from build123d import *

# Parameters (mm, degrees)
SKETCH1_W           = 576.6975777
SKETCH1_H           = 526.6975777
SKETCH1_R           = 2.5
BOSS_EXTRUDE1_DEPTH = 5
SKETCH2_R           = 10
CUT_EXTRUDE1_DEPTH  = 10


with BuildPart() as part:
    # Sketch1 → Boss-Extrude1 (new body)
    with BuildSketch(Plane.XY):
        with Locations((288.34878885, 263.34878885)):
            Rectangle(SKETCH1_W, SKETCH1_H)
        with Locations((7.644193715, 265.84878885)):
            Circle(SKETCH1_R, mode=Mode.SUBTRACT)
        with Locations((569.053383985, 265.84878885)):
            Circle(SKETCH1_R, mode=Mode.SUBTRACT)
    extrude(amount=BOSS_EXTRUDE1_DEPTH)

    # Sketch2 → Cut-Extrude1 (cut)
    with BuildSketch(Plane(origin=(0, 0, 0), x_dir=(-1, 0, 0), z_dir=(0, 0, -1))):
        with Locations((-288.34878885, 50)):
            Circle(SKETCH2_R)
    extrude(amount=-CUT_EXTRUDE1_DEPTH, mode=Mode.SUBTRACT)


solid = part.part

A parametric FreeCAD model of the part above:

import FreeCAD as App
import Part
import Sketcher


def add_polygon(sketch, points):
    """Adds a closed chain of lines whose ends are joined by coincident constraints."""
    first, n = sketch.GeometryCount, len(points)
    for a, b in zip(points, points[1:] + points[:1]):
        sketch.addGeometry(Part.LineSegment(App.Vector(*a, 0), App.Vector(*b, 0)), False)
    for i in range(n):
        sketch.addConstraint(Sketcher.Constraint("Coincident", first + i, 2, first + (i + 1) % n, 1))

doc = App.newDocument("Part")
body = doc.addObject("PartDesign::Body", "Body")

# Sketch on XY plane
sketch1 = body.newObject("Sketcher::SketchObject", "Sketch")
sketch1.AttachmentSupport = (doc.getObject("XY_Plane"), [""])
sketch1.MapMode = "FlatFace"
add_polygon(sketch1, [(0, 526.7), (0, 0), (576.7, 0), (576.7, 526.7)])  # lines 0-3
sketch1.addGeometry(Part.Circle(App.Vector(7.6, 265.8, 0), App.Vector(0, 0, 1), 2.5), False)  # 4
sketch1.addGeometry(Part.Circle(App.Vector(569.1, 265.8, 0), App.Vector(0, 0, 1), 2.5), False)  # 5
sketch1.addConstraint(Sketcher.Constraint("Vertical", 0))
sketch1.addConstraint(Sketcher.Constraint("Horizontal", 1))
sketch1.addConstraint(Sketcher.Constraint("Vertical", 2))
sketch1.addConstraint(Sketcher.Constraint("Horizontal", 3))
sketch1.addConstraint(Sketcher.Constraint("Coincident", 0, 2, -1, 1))
sketch1.addConstraint(Sketcher.Constraint("Equal", 4, 5))
sketch1.addConstraint(Sketcher.Constraint("Horizontal", 4, 3, 5, 3))
sketch1.addConstraint(Sketcher.Constraint("Diameter", 4, 5.0))
sketch1.addConstraint(Sketcher.Constraint("DistanceX", 1, 1, 1, 2, 576.697578))
sketch1.addConstraint(Sketcher.Constraint("DistanceY", 0, 2, 0, 1, 526.697578))
sketch1.addConstraint(Sketcher.Constraint("DistanceY", -1, 1, 4, 3, 265.848789))
sketch1.addConstraint(Sketcher.Constraint("DistanceX", 4, 3, 5, 3, 561.40919))
sketch1.addConstraint(Sketcher.Constraint("DistanceX", -1, 1, 4, 3, 7.644194))
pad1 = body.newObject("PartDesign::Pad", "Pad")
pad1.Profile = sketch1
pad1.Length = 5

# Sketch on XY plane
sketch2 = body.newObject("Sketcher::SketchObject", "Sketch001")
sketch2.AttachmentSupport = (doc.getObject("XY_Plane"), [""])
sketch2.MapMode = "FlatFace"
sketch2.addGeometry(Part.Circle(App.Vector(288, 50, 0), App.Vector(0, 0, 1), 10), False)
sketch2.addConstraint(Sketcher.Constraint("Diameter", 0, 20.0))
sketch2.addConstraint(Sketcher.Constraint("DistanceY", -1, 1, 0, 3, 50.0))
sketch2.addConstraint(Sketcher.Constraint("DistanceX", -1, 1, 0, 3, 288.348789))
pocket1 = body.newObject("PartDesign::Pocket", "Pocket")
pocket1.Profile = sketch2
pocket1.Length = 10
pocket1.Reversed = True

doc.recompute()
